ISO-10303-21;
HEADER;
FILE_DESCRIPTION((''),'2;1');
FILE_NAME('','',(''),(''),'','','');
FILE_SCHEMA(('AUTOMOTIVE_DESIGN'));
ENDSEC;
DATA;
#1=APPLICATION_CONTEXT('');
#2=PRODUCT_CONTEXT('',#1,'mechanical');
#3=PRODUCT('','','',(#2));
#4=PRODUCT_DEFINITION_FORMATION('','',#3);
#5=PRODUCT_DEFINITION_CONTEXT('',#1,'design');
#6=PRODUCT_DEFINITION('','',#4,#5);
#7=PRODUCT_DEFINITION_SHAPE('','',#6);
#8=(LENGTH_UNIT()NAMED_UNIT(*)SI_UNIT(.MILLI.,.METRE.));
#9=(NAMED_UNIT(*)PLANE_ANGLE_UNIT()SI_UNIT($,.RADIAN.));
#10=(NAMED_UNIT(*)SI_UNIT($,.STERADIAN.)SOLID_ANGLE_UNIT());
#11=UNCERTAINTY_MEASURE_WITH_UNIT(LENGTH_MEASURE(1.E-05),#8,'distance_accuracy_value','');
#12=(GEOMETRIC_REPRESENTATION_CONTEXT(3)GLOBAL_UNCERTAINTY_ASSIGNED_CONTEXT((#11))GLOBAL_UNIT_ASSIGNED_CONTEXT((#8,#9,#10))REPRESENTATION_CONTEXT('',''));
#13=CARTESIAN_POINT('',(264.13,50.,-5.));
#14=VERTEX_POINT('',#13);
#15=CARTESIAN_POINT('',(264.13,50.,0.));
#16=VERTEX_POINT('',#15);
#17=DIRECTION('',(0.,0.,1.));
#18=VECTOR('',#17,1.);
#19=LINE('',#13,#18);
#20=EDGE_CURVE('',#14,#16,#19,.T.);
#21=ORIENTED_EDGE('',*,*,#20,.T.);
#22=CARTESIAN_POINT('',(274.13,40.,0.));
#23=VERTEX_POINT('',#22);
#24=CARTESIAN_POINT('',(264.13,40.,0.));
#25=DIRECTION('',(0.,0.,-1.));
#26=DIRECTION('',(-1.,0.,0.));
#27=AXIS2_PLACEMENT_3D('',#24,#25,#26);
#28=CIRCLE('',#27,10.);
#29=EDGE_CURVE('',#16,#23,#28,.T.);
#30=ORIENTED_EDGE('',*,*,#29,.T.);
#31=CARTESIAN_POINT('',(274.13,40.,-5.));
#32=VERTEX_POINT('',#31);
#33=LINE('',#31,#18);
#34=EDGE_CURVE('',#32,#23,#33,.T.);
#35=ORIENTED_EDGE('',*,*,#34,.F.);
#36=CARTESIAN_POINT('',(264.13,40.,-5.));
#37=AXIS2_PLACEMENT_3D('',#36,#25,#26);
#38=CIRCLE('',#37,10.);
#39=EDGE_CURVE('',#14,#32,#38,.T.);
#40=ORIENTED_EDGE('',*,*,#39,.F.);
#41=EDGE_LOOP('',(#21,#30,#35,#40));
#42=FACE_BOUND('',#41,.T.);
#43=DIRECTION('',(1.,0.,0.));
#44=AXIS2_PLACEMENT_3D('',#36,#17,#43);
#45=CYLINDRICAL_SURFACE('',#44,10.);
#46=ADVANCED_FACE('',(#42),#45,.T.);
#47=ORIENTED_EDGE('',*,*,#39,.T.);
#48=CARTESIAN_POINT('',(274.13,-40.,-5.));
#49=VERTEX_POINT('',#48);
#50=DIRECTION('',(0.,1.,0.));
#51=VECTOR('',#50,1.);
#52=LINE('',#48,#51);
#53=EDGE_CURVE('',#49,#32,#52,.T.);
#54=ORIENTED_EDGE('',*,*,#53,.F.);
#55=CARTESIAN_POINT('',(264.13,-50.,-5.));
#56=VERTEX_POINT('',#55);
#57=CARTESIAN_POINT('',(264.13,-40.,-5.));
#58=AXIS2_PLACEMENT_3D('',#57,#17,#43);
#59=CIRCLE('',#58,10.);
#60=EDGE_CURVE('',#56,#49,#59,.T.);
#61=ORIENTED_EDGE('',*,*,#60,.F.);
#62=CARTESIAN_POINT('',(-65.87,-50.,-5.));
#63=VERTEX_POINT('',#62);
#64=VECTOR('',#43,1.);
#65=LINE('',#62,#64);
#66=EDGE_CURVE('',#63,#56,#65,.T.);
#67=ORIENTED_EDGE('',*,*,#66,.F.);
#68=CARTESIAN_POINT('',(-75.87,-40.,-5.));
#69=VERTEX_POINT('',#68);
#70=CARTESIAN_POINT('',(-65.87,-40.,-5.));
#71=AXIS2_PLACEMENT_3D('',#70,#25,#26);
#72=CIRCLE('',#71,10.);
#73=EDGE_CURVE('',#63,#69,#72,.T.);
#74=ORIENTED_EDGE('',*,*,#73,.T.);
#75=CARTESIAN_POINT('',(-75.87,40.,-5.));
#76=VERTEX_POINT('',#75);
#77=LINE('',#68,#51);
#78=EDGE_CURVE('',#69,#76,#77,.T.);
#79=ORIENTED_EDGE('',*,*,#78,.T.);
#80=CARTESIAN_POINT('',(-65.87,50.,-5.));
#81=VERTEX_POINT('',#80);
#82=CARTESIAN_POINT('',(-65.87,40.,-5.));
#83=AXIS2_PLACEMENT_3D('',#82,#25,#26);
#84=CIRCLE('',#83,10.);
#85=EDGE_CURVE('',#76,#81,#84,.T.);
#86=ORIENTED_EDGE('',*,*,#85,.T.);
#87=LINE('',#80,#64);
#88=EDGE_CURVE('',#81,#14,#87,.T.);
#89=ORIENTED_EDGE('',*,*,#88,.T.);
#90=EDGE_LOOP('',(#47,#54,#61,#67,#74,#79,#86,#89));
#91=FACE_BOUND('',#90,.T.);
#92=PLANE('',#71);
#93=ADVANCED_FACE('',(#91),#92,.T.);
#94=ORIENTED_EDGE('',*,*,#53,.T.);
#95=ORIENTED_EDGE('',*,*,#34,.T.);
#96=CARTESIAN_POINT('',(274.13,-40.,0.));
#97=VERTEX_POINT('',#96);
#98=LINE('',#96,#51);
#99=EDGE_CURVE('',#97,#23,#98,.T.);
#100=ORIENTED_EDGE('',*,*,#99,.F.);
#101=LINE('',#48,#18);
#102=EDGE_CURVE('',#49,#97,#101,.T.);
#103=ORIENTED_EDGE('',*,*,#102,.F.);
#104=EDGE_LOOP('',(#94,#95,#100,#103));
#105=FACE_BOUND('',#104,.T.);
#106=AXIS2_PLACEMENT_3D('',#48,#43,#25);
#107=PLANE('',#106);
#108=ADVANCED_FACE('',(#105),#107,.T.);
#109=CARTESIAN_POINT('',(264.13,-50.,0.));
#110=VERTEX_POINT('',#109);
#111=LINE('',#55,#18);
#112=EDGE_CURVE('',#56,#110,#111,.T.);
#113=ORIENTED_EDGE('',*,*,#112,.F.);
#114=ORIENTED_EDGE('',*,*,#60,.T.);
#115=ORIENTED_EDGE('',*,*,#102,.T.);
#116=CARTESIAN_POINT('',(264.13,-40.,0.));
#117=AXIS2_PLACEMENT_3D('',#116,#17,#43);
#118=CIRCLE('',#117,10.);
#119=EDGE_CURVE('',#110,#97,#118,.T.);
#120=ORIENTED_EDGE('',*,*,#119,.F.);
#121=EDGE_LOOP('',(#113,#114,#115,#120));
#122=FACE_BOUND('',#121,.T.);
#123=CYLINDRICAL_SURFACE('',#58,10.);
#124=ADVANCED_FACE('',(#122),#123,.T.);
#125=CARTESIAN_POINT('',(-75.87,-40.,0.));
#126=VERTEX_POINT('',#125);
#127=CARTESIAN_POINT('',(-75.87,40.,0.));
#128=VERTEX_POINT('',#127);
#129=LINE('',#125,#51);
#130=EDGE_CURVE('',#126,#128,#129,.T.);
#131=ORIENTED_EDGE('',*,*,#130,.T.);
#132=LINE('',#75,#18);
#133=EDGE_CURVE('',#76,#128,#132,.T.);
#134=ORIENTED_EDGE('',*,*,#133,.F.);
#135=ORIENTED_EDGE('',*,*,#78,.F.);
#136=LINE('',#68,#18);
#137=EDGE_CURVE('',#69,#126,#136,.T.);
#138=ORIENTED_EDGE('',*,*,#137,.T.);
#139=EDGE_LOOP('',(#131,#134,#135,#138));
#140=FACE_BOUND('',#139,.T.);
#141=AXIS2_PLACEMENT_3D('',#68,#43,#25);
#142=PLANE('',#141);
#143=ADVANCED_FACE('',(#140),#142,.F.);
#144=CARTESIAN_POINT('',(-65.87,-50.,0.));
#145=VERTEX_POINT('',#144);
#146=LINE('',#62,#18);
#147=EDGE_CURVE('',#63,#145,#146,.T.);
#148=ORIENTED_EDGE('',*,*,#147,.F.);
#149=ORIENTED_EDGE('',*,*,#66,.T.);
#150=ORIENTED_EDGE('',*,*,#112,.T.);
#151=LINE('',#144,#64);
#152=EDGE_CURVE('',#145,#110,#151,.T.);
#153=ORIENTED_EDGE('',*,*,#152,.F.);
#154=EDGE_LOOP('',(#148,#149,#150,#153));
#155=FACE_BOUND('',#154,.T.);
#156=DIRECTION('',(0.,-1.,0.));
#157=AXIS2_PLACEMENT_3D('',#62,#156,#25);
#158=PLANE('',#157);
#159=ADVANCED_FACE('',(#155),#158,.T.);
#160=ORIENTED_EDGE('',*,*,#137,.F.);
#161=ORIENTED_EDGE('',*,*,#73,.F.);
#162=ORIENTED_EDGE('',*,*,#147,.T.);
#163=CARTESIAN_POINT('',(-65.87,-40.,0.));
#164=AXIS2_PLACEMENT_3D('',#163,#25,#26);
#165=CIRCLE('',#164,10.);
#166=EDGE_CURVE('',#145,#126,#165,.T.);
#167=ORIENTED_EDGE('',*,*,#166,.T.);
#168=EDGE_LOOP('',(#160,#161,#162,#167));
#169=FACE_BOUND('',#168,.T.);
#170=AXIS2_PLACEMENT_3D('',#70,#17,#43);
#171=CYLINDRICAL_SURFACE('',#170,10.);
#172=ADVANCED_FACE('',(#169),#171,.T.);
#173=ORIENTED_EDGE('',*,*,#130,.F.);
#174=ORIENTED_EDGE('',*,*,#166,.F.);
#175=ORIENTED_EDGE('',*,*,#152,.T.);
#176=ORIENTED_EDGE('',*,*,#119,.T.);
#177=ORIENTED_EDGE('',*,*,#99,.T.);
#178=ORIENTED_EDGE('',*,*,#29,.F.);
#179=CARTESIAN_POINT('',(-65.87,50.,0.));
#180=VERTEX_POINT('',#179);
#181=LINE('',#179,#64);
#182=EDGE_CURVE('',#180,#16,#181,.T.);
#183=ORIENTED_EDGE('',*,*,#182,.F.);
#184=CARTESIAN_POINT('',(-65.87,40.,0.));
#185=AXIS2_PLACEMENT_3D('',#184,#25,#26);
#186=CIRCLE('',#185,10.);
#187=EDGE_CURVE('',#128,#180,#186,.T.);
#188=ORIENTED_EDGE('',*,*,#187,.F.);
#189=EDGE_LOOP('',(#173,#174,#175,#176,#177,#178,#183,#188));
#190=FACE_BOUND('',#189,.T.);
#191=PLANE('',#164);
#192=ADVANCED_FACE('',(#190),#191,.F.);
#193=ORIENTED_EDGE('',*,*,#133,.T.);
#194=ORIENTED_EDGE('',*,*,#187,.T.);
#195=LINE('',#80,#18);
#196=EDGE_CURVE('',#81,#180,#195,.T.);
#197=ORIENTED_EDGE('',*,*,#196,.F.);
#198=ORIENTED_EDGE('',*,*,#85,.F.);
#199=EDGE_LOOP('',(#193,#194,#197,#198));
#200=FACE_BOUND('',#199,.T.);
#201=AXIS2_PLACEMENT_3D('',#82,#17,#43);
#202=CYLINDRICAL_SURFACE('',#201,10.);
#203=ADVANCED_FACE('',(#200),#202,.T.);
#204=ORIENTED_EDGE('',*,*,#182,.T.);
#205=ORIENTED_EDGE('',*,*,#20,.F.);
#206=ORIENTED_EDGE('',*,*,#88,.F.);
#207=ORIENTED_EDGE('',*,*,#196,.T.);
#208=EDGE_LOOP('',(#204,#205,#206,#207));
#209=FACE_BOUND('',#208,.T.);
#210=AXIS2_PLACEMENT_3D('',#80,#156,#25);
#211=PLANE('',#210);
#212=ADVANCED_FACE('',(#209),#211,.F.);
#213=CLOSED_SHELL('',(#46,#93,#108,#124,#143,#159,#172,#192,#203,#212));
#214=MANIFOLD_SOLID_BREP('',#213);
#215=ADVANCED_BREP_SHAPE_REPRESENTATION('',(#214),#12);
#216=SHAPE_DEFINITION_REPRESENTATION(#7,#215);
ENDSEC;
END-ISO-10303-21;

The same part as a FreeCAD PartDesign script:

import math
import FreeCAD as App
import Part
import Sketcher

V = App.Vector
Q = App.Units.Quantity

doc = App.newDocument("Part")
body = doc.addObject("PartDesign::Body", "Body")

# Sketch on XY plane
sketch1 = body.newObject("Sketcher::SketchObject", "Sketch")
sketch1.AttachmentSupport = (doc.getObject("XY_Plane"), [""])
sketch1.MapMode = "FlatFace"
sketch1.addGeometry([
    Part.LineSegment(V(-66, -50, 0), V(264, -50, 0)),  # 0
    Part.ArcOfCircle(Part.Circle(V(264, -40, 0), V(0, 0, 1), 10), math.radians(-90), math.radians(0)),  # 1
    Part.LineSegment(V(274, -40, 0), V(274, 40, 0)),  # 2
    Part.ArcOfCircle(Part.Circle(V(264, 40, 0), V(0, 0, 1), 10), math.radians(0), math.radians(90)),  # 3
    Part.LineSegment(V(264, 50, 0), V(-66, 50, 0)),  # 4
    Part.ArcOfCircle(Part.Circle(V(-66, 40, 0), V(0, 0, 1), 10), math.radians(90), math.radians(180)),  # 5
    Part.LineSegment(V(-76, 40, 0), V(-76, -40, 0)),  # 6
    Part.ArcOfCircle(Part.Circle(V(-66, -40, 0), V(0, 0, 1), 10), math.radians(180), math.radians(270)),  # 7
], False)
sketch1.addConstraint([
    Sketcher.Constraint("Tangent", 0, 2, 1, 1),
    Sketcher.Constraint("Tangent", 1, 2, 2, 1),
    Sketcher.Constraint("Tangent", 2, 2, 3, 1),
    Sketcher.Constraint("Tangent", 3, 2, 4, 1),
    Sketcher.Constraint("Tangent", 4, 2, 5, 1),
    Sketcher.Constraint("Tangent", 5, 2, 6, 1),
    Sketcher.Constraint("Tangent", 6, 2, 7, 1),
    Sketcher.Constraint("Tangent", 7, 2, 0, 1),
    Sketcher.Constraint("Horizontal", 0),
    Sketcher.Constraint("Vertical", 2),
    Sketcher.Constraint("Horizontal", 4),
    Sketcher.Constraint("Vertical", 6),
    Sketcher.Constraint("Equal", 1, 3),
    Sketcher.Constraint("Equal", 3, 5),
    Sketcher.Constraint("Equal", 5, 7),
    Sketcher.Constraint("Radius", 1, Q("10 mm")),
    Sketcher.Constraint("DistanceX", 0, 1, 0, 2, Q("330 mm")),
    Sketcher.Constraint("DistanceY", 2, 1, 2, 2, Q("80 mm")),
    Sketcher.Constraint("DistanceY", 1, 3, -1, 1, Q("40 mm")),
    Sketcher.Constraint("DistanceX", -1, 1, 1, 3, Q("264.13 mm")),
])
pad1 = body.newObject("PartDesign::Pad", "Pad")
pad1.Profile = sketch1
pad1.Length = 5
pad1.Reversed = True

doc.recompute()
